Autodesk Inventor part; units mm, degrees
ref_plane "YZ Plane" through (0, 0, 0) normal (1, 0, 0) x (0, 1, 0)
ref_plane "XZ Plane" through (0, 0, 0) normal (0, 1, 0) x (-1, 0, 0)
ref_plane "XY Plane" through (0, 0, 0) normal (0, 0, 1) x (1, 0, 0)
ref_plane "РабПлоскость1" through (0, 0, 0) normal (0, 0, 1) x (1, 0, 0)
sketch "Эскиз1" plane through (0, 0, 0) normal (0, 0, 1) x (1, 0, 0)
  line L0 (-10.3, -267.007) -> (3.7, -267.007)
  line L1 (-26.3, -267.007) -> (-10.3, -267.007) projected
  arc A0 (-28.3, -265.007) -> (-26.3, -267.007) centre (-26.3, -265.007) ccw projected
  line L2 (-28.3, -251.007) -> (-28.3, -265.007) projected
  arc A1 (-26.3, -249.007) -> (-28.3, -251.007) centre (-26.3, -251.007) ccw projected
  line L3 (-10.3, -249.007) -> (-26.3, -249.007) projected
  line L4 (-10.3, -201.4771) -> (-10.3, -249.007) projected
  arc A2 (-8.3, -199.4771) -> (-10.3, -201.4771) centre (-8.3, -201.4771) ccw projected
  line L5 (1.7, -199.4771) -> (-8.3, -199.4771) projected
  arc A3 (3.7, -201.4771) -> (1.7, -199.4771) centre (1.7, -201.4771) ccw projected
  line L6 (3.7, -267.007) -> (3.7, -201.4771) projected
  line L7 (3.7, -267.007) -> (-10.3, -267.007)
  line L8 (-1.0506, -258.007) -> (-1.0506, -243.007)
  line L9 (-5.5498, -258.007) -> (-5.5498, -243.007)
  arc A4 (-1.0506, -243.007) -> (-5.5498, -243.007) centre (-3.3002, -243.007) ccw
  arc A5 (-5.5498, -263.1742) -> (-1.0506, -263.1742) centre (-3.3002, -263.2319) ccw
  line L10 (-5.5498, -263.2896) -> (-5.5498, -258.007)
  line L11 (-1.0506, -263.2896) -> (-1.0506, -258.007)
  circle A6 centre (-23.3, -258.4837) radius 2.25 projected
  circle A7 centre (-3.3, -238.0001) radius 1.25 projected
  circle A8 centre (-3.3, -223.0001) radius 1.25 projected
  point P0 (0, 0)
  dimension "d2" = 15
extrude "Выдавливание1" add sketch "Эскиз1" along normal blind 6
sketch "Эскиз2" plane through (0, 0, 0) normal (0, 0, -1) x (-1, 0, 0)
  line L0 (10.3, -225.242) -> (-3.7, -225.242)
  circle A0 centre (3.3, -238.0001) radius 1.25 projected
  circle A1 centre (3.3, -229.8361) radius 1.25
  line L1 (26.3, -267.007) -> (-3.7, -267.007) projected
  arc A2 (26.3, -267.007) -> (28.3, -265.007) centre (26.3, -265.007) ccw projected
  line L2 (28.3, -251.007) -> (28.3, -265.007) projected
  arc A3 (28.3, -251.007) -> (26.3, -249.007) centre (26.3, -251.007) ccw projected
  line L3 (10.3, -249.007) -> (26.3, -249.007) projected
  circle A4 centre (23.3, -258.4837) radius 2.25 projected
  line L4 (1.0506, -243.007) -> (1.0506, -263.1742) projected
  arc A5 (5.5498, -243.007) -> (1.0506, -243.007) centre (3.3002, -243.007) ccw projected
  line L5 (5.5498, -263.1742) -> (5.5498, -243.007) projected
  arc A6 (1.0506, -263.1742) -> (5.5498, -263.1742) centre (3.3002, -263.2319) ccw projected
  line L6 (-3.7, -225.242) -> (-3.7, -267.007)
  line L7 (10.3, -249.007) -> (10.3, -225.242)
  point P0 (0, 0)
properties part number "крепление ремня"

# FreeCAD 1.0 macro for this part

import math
import FreeCAD as App
import Part
import Sketcher
from FreeCAD import Vector
Q = App.Units.Quantity

doc = App.newDocument("Part")
body = doc.addObject("PartDesign::Body", "Body")

# Sketch on XY plane
sketch1 = body.newObject("Sketcher::SketchObject", "Sketch")
sketch1.AttachmentSupport = (doc.getObject("XY_Plane"), [""])
sketch1.MapMode = "FlatFace"
sketch1.addGeometry([
    Part.LineSegment(Vector(-26.3, -267, 0), Vector(3.7, -267, 0)),  # 0
    Part.LineSegment(Vector(3.7, -267, 0), Vector(3.7, -201.5, 0)),  # 1
    Part.ArcOfCircle(Part.Circle(Vector(1.7, -201.5, 0), Vector(0, 0, 1), 2), math.radians(0), math.radians(90)),  # 2
    Part.LineSegment(Vector(1.7, -199.5, 0), Vector(-8.3, -199.5, 0)),  # 3
    Part.ArcOfCircle(Part.Circle(Vector(-8.3, -201.5, 0), Vector(0, 0, 1), 2), math.radians(90), math.radians(180)),  # 4
    Part.LineSegment(Vector(-10.3, -201.5, 0), Vector(-10.3, -249, 0)),  # 5
    Part.LineSegment(Vector(-10.3, -249, 0), Vector(-26.3, -249, 0)),  # 6
    Part.ArcOfCircle(Part.Circle(Vector(-26.3, -251, 0), Vector(0, 0, 1), 2), math.radians(90), math.radians(180)),  # 7
    Part.LineSegment(Vector(-28.3, -251, 0), Vector(-28.3, -265, 0)),  # 8
    Part.ArcOfCircle(Part.Circle(Vector(-26.3, -265, 0), Vector(0, 0, 1), 2), math.radians(180), math.radians(270)),  # 9
    Part.Circle(Vector(-23.3, -258.5, 0), Vector(0, 0, 1), 2.2),  # 10
    Part.LineSegment(Vector(-1.1, -243, 0), Vector(-1.1, -263.2, 0)),  # 11
    Part.ArcOfCircle(Part.Circle(Vector(-3.3, -263.2, 0), Vector(0, 0, 1), 2.3), math.radians(179), math.radians(361)),  # 12
    Part.LineSegment(Vector(-5.5, -263.2, 0), Vector(-5.5, -243, 0)),  # 13
    Part.ArcOfCircle(Part.Circle(Vector(-3.3, -243, 0), Vector(0, 0, 1), 2.2), math.radians(0), math.radians(180)),  # 14
    Part.Circle(Vector(-3.3, -238, 0), Vector(0, 0, 1), 1.2),  # 15
    Part.Circle(Vector(-3.3, -223, 0), Vector(0, 0, 1), 1.2),  # 16
], False)
sketch1.addConstraint([
    Sketcher.Constraint("Coincident", 0, 2, 1, 1),
    Sketcher.Constraint("Tangent", 1, 2, 2, 1),
    Sketcher.Constraint("Tangent", 2, 2, 3, 1),
    Sketcher.Constraint("Tangent", 3, 2, 4, 1),
    Sketcher.Constraint("Tangent", 4, 2, 5, 1),
    Sketcher.Constraint("Coincident", 5, 2, 6, 1),
    Sketcher.Constraint("Tangent", 6, 2, 7, 1),
    Sketcher.Constraint("Tangent", 7, 2, 8, 1),
    Sketcher.Constraint("Tangent", 8, 2, 9, 1),
    Sketcher.Constraint("Tangent", 9, 2, 0, 1),
    Sketcher.Constraint("Coincident", 11, 2, 12, 2),
    Sketcher.Constraint("Coincident", 12, 1, 13, 1),
    Sketcher.Constraint("Tangent", 13, 2, 14, 2),
    Sketcher.Constraint("Tangent", 14, 1, 11, 1),
    Sketcher.Constraint("Horizontal", 0),
    Sketcher.Constraint("Vertical", 1),
    Sketcher.Constraint("Horizontal", 3),
    Sketcher.Constraint("Vertical", 5),
    Sketcher.Constraint("Horizontal", 6),
    Sketcher.Constraint("Vertical", 8),
    Sketcher.Constraint("Vertical", 11),
    Sketcher.Constraint("Vertical", 13),
    Sketcher.Constraint("Equal", 2, 4),
    Sketcher.Constraint("Equal", 4, 7),
    Sketcher.Constraint("Equal", 7, 9),
    Sketcher.Constraint("Equal", 15, 16),
    Sketcher.Constraint("Horizontal", 11, 2, 12, 1),
    Sketcher.Constraint("Vertical", 14, 3, 15, 3),
    Sketcher.Constraint("Vertical", 15, 3, 16, 3),
    Sketcher.Constraint("Radius", 2, Q("2 mm")),
    Sketcher.Constraint("DistanceX", 10, 3, 4, 3, Q("15 mm")),
    Sketcher.Constraint("DistanceY", 15, 3, 16, 3, Q("15 mm")),
    Sketcher.Constraint("Diameter", 10, Q("4.5 mm")),
    Sketcher.Constraint("Diameter", 15, Q("2.5 mm")),
    Sketcher.Constraint("DistanceX", 0, 1, 0, 2, Q("30 mm")),
    Sketcher.Constraint("DistanceX", 3, 2, 3, 1, Q("10 mm")),
    Sketcher.Constraint("DistanceY", 8, 2, 8, 1, Q("14 mm")),
    Sketcher.Constraint("DistanceY", 15, 3, -1, 1, Q("238 mm")),
    Sketcher.Constraint("DistanceY", 7, 3, 14, 3, Q("8 mm")),
    Sketcher.Constraint("DistanceX", 7, 3, 15, 3, Q("23 mm")),
    Sketcher.Constraint("DistanceY", 1, 1, 1, 2, Q("65.53 mm")),
    Sketcher.Constraint("DistanceX", -1, 1, 2, 3, Q("1.7 mm")),
    Sketcher.Constraint("Radius", 12, Q("2.2503 mm")),
    Sketcher.Constraint("Radius", 14, Q("2.2496 mm")),
    Sketcher.Constraint("DistanceY", 11, 2, 11, 1, Q("20.1672 mm")),
    Sketcher.Constraint("DistanceY", 2, 3, -1, 1, Q("201.477 mm")),
    Sketcher.Constraint("DistanceY", 10, 3, -1, 1, Q("258.4837 mm")),
])
pad1 = body.newObject("PartDesign::Pad", "Pad")
pad1.Profile = sketch1
pad1.Length = 6

doc.recompute()
